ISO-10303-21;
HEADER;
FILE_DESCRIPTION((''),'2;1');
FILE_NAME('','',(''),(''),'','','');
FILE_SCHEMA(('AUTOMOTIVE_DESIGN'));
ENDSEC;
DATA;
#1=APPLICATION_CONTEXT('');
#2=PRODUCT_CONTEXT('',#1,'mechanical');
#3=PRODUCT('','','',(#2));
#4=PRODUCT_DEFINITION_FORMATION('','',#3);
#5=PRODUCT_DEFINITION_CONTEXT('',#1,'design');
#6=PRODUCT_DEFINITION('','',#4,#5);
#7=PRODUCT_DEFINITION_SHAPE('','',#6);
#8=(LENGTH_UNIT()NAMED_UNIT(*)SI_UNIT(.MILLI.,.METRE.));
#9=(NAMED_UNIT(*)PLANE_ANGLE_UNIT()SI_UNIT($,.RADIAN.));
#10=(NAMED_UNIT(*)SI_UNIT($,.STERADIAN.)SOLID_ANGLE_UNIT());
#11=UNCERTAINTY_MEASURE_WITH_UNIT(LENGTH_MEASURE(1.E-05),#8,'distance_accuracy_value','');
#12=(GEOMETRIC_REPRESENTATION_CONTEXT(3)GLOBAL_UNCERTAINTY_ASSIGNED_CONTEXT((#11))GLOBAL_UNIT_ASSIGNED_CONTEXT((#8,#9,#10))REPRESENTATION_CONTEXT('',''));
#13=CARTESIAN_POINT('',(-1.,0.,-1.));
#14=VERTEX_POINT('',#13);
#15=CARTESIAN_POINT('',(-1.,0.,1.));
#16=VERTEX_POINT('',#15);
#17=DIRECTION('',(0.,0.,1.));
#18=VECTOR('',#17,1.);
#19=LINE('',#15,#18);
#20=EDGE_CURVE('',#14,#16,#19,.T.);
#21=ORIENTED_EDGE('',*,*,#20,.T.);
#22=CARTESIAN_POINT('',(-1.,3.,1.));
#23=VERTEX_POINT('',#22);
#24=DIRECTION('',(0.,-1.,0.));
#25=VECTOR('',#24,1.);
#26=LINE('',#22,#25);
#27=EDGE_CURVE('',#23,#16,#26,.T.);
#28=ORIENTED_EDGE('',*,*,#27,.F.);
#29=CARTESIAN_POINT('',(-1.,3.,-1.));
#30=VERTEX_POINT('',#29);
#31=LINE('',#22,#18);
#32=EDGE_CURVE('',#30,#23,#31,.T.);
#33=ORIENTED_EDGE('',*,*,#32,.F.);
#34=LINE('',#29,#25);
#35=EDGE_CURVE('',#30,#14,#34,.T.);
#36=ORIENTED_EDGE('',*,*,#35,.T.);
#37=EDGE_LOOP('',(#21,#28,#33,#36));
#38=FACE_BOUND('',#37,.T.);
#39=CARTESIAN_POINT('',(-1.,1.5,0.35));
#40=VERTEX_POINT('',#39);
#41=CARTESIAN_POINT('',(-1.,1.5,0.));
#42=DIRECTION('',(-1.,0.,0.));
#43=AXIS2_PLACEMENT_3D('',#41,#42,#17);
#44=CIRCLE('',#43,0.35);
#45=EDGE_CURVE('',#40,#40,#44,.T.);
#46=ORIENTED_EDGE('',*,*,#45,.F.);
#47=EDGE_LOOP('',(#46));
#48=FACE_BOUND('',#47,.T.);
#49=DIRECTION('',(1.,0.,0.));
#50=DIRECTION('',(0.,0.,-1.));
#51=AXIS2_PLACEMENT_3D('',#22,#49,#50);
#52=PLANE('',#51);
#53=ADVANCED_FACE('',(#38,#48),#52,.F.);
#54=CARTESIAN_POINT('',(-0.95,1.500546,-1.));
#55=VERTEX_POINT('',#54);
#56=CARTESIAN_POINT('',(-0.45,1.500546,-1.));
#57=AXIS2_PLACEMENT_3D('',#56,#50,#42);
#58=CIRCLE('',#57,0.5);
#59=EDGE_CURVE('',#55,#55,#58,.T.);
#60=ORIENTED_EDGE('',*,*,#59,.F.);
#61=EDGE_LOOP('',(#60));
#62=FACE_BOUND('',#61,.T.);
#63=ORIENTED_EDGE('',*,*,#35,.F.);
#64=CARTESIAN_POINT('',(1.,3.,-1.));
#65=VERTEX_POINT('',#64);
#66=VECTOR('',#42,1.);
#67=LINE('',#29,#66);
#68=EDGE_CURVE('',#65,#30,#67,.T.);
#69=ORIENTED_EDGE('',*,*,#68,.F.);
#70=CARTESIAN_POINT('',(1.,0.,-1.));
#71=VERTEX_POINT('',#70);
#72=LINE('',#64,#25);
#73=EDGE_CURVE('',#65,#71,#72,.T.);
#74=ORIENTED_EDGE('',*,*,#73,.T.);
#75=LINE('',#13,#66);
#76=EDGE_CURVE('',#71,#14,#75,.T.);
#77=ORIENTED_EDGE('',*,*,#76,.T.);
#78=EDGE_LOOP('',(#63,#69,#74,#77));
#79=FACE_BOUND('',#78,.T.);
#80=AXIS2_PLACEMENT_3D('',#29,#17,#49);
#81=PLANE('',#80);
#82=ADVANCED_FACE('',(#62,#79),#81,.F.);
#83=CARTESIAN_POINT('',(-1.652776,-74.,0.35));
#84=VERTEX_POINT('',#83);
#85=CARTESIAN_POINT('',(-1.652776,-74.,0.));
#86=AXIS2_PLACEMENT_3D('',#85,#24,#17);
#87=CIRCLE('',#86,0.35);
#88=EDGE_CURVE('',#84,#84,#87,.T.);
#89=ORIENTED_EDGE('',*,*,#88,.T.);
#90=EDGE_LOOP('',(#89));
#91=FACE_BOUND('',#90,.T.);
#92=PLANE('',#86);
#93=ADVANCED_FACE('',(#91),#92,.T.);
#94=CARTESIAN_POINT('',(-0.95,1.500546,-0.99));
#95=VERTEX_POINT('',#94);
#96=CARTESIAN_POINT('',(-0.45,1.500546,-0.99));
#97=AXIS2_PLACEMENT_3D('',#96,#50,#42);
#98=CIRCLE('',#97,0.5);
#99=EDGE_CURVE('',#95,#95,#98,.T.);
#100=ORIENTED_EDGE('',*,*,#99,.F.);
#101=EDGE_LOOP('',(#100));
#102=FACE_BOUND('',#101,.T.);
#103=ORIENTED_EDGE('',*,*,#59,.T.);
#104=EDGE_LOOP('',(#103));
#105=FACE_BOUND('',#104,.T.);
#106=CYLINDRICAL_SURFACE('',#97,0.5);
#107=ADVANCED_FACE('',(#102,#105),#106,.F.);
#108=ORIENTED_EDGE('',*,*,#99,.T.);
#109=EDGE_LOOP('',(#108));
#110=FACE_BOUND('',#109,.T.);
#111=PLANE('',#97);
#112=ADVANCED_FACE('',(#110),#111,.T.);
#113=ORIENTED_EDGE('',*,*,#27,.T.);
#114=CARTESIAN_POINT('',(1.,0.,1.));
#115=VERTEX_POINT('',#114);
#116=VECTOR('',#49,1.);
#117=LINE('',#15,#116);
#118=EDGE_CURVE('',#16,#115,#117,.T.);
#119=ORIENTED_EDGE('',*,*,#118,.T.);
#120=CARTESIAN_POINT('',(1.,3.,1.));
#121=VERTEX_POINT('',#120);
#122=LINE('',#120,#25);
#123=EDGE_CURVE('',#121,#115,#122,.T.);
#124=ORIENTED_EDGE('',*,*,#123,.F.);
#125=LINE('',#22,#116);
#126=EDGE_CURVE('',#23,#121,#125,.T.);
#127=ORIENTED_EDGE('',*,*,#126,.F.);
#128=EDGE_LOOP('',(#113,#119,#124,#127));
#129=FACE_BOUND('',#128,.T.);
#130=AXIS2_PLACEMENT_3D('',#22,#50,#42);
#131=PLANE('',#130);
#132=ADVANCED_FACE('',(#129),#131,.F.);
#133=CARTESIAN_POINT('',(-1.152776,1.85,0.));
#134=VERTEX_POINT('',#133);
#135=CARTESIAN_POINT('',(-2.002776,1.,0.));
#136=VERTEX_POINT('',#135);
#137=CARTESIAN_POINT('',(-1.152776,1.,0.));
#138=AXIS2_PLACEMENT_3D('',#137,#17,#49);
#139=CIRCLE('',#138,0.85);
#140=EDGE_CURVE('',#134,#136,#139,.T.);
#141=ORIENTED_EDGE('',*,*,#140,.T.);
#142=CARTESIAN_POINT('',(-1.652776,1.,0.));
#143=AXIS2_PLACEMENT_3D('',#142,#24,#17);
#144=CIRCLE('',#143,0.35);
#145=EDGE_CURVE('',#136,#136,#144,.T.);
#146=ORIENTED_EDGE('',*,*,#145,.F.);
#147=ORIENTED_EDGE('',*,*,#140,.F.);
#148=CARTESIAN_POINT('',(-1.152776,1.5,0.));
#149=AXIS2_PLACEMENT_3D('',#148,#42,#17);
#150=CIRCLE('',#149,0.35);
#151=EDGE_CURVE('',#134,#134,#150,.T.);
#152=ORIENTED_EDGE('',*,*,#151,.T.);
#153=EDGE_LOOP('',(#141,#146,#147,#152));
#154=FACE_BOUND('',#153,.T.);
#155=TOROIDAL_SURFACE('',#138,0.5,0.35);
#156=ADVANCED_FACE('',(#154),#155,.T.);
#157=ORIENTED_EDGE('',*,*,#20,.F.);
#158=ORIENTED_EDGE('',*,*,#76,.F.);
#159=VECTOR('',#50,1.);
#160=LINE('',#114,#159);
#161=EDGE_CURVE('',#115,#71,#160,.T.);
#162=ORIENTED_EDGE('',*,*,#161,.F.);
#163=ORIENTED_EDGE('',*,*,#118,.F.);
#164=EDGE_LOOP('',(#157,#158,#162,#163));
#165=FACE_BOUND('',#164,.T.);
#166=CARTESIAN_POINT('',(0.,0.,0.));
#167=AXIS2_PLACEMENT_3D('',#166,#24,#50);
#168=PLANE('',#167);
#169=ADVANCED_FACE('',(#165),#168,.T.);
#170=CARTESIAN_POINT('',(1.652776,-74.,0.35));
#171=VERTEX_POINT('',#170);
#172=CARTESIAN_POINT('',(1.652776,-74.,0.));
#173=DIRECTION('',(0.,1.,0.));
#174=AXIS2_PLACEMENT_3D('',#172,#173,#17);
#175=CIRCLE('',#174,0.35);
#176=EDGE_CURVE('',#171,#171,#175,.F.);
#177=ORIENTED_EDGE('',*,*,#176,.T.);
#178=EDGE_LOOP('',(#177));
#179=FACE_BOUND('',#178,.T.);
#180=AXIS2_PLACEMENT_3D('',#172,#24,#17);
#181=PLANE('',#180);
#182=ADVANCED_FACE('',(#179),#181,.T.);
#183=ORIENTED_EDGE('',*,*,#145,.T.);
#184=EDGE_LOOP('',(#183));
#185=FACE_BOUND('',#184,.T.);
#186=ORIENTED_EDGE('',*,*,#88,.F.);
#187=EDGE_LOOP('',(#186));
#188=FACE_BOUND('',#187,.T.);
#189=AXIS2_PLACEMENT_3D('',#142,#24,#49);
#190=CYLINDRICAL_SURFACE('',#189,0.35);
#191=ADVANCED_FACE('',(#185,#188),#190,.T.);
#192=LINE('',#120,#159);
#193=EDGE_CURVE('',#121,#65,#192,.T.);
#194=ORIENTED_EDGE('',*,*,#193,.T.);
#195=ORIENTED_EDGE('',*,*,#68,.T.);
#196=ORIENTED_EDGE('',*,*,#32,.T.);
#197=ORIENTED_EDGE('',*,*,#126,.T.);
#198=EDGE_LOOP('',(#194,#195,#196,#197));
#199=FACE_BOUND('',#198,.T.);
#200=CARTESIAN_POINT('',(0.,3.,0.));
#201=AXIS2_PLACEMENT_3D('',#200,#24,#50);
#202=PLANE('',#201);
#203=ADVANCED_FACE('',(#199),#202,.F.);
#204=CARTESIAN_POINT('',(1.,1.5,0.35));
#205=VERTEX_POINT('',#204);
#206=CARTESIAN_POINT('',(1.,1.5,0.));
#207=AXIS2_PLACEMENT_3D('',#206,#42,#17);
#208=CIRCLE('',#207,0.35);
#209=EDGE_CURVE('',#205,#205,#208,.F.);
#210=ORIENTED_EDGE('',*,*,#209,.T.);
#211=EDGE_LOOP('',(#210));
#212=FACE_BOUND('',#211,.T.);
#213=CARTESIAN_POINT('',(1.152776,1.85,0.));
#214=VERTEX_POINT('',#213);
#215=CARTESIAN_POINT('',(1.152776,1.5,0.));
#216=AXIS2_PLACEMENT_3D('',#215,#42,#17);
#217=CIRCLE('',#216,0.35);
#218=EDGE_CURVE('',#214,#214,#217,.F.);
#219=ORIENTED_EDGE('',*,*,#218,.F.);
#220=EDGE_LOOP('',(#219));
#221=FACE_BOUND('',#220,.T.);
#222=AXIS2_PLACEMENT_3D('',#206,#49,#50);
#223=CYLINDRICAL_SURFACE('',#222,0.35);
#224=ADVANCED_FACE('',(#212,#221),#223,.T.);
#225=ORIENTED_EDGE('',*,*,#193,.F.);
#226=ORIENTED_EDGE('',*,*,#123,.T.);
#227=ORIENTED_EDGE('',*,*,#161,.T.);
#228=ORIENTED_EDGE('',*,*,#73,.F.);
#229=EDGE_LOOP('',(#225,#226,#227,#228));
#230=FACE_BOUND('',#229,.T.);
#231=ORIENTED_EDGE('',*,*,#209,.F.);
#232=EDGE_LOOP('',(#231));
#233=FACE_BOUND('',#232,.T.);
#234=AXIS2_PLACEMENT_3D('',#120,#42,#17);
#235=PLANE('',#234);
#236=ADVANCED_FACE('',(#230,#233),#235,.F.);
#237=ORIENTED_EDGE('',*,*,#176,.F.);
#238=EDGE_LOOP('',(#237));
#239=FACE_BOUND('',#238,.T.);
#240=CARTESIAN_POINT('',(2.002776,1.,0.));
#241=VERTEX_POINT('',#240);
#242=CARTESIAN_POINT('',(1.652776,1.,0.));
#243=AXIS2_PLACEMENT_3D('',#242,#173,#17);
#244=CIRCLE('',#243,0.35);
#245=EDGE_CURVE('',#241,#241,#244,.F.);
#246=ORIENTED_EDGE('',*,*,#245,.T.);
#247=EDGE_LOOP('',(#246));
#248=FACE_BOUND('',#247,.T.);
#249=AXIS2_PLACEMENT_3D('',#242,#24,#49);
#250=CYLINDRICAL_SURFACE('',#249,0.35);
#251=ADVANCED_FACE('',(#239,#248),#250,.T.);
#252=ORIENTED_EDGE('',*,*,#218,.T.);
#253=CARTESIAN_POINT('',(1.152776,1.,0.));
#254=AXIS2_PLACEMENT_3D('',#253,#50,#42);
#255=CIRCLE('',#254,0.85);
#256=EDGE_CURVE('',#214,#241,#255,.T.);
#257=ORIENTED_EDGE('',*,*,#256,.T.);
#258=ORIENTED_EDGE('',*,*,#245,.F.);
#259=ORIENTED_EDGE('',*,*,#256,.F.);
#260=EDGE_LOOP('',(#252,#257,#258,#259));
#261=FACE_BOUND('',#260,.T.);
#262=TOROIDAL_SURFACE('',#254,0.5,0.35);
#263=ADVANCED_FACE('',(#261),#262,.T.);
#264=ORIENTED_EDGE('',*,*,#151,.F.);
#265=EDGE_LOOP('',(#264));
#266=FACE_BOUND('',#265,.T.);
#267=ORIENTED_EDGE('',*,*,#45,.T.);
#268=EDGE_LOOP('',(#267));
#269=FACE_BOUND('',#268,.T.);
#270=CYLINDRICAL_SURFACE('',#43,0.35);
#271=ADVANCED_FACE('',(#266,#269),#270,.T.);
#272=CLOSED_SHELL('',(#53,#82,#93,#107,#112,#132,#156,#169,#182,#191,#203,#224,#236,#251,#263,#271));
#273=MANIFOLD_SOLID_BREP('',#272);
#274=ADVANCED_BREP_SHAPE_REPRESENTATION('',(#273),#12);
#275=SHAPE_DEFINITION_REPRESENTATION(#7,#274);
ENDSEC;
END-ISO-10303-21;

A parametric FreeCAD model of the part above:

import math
import FreeCAD as App
import Part
import Sketcher
Q = App.Units.Quantity

doc = App.newDocument("Part")
body = doc.addObject("PartDesign::Body", "Body")

# Sketch on XZ plane
sketch1 = doc.addObject("Sketcher::SketchObject", "Sketch")
body.addObject(sketch1)
sketch1.AttachmentSupport = (doc.XZ_Plane, [""])
sketch1.MapMode = "FlatFace"
sketch1.addGeometry([
    Part.LineSegment(App.Vector(-1, -1, 0), App.Vector(-1, 1, 0)),
    Part.LineSegment(App.Vector(-1, 1, 0), App.Vector(1, 1, 0)),
    Part.LineSegment(App.Vector(1, 1, 0), App.Vector(1, -1, 0)),
    Part.LineSegment(App.Vector(1, -1, 0), App.Vector(-1, -1, 0)),
], False)
sketch1.addConstraint([
    Sketcher.Constraint("Coincident", 0, 2, 1, 1),
    Sketcher.Constraint("Coincident", 1, 2, 2, 1),
    Sketcher.Constraint("Coincident", 2, 2, 3, 1),
    Sketcher.Constraint("Coincident", 3, 2, 0, 1),
    Sketcher.Constraint("Vertical", 0),
    Sketcher.Constraint("Horizontal", 1),
    Sketcher.Constraint("Vertical", 2),
    Sketcher.Constraint("Horizontal", 3),
    Sketcher.Constraint("Symmetric", 0, 2, 2, 2, -1, 1),
    Sketcher.Constraint("Equal", 3, 0),
    Sketcher.Constraint("DistanceX", 1, 1, 1, 2, Q("2 mm")),
])
pad1 = doc.addObject("PartDesign::Pad", "Pad")
body.addObject(pad1)
pad1.Profile = sketch1
pad1.Length = 3
pad1.Reversed = True

# Sketch on XY plane
sketch2 = doc.addObject("Sketcher::SketchObject", "Sketch001")
body.addObject(sketch2)
sketch2.AttachmentSupport = (doc.XY_Plane, [""])
sketch2.MapMode = "FlatFace"
sketch2.AttachmentOffset = App.Placement(App.Vector(0, 0, -1), App.Rotation())
sketch2.addGeometry(Part.Circle(App.Vector(-0.45, 1.500546, 0), App.Vector(0, 0, 1), 0.5), False)
sketch2.addConstraint([
    Sketcher.Constraint("Diameter", 0, Q("1 mm")),
    Sketcher.Constraint("DistanceX", 0, 3, -1, 1, Q("0.45 mm")),
    Sketcher.Constraint("DistanceY", -1, 1, 0, 3, Q("1.500546 mm")),
])
pocket1 = doc.addObject("PartDesign::Pocket", "Pocket")
body.addObject(pocket1)
pocket1.Profile = sketch2
pocket1.Length = 0.01
pocket1.Reversed = True

# Sketch on YZ plane
sketch3 = doc.addObject("Sketcher::SketchObject", "Sketch002")
body.addObject(sketch3)
sketch3.AttachmentSupport = (doc.YZ_Plane, [""])
sketch3.MapMode = "FlatFace"
sketch3.AttachmentOffset = App.Placement(App.Vector(0, 0, -1), App.Rotation())
sketch3.addGeometry(Part.Circle(App.Vector(1.5, 0, 0), App.Vector(0, 0, 1), 0.35), False)
sketch3.addConstraint([
    Sketcher.Constraint("PointOnObject", 0, 3, -1),
    Sketcher.Constraint("Diameter", 0, Q("0.7 mm")),
    Sketcher.Constraint("DistanceX", -1, 1, 0, 3, Q("1.5 mm")),
])

# Sketch on XY plane
sketch4 = doc.addObject("Sketcher::SketchObject", "Sketch003")
body.addObject(sketch4)
sketch4.AttachmentSupport = (doc.XY_Plane, [""])
sketch4.MapMode = "FlatFace"
sketch4.addGeometry([
    Part.LineSegment(App.Vector(-1, 1.5, 0), App.Vector(-1.152776, 1.5, 0)),
    Part.ArcOfCircle(Part.Circle(App.Vector(-1.152776, 1, 0), App.Vector(0, 0, 1), 0.5), math.radians(90), math.radians(180)),
    Part.LineSegment(App.Vector(-1.652776, 1, 0), App.Vector(-1.652776, -74, 0)),
], False)
sketch4.addConstraint([
    Sketcher.Constraint("Tangent", 0, 2, 1, 1),
    Sketcher.Constraint("Tangent", 1, 2, 2, 1),
    Sketcher.Constraint("Horizontal", 0),
    Sketcher.Constraint("Vertical", 2),
    Sketcher.Constraint("Radius", 1, Q("0.5 mm")),
    Sketcher.Constraint("DistanceY", 2, 2, 2, 1, Q("75 mm")),
    Sketcher.Constraint("DistanceY", -1, 1, 1, 3, Q("1 mm")),
    Sketcher.Constraint("DistanceX", 0, 1, -1, 1, Q("1 mm")),
    Sketcher.Constraint("DistanceX", 0, 2, 0, 1, Q("0.152776 mm")),
])
doc.recompute()

additivepipe = doc.addObject("PartDesign::AdditivePipe", "AdditivePipe")
body.addObject(additivepipe)
additivepipe.Profile = sketch3
additivepipe.Spine = (sketch4, ["Edge1", "Edge2", "Edge3"])
doc.recompute()

mirrored = doc.addObject("PartDesign::Mirrored", "Mirrored")
body.addObject(mirrored)
mirrored.Originals = [additivepipe]
mirrored.MirrorPlane = (doc.YZ_Plane, [""])
body.Tip = mirrored

doc.recompute()
